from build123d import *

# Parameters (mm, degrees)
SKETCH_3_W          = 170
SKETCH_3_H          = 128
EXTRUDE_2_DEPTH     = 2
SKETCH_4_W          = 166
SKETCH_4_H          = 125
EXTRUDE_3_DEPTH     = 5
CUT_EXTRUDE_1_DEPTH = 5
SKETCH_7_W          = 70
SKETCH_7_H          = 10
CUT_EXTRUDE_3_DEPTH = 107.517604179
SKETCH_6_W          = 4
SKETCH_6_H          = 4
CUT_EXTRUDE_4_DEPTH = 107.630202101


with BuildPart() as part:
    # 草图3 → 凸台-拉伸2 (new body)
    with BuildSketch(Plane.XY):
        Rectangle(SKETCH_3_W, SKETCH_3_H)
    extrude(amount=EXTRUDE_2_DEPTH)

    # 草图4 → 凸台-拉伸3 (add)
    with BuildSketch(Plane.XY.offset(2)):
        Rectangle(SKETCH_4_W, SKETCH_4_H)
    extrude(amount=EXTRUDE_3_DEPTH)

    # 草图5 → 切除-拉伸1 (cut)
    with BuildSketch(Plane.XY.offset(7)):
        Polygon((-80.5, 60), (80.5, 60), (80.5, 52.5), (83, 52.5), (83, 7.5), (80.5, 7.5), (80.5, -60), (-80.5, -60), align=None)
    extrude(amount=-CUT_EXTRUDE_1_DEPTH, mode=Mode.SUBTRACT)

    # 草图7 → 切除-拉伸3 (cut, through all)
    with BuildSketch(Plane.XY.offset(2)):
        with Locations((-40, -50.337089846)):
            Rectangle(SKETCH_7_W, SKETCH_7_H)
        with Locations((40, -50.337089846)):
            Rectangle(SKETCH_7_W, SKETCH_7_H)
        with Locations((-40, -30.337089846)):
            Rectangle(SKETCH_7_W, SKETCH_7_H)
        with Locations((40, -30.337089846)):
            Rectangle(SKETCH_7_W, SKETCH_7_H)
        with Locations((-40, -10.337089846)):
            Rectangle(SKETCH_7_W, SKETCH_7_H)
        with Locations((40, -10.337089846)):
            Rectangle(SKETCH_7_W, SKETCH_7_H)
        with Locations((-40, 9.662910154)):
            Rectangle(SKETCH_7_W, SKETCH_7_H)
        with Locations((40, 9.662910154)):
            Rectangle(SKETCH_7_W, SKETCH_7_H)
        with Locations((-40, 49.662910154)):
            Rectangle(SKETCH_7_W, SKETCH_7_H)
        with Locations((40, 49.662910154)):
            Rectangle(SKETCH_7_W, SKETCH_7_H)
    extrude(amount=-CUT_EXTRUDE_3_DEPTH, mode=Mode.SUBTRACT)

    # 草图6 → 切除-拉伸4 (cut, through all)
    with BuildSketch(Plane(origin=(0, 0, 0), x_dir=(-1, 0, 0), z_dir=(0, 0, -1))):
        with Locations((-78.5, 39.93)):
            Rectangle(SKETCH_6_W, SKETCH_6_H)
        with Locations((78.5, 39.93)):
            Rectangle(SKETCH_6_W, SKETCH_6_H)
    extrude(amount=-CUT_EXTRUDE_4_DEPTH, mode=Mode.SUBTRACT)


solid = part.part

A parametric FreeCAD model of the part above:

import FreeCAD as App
import Part
import Sketcher
from FreeCAD import Vector
Q = App.Units.Quantity


def add_polygon(sketch, points):
    """Adds a closed chain of lines whose ends are joined by coincident constraints."""
    first, n = sketch.GeometryCount, len(points)
    for a, b in zip(points, points[1:] + points[:1]):
        sketch.addGeometry(Part.LineSegment(App.Vector(*a, 0), App.Vector(*b, 0)), False)
    for i in range(n):
        sketch.addConstraint(Sketcher.Constraint("Coincident", first + i, 2, first + (i + 1) % n, 1))

doc = App.newDocument("Part")
body = doc.addObject("PartDesign::Body", "Body")

# Sketch on XY plane
sketch1 = body.newObject("Sketcher::SketchObject", "Sketch")
sketch1.AttachmentSupport = (doc.getObject("XY_Plane"), [""])
sketch1.MapMode = "FlatFace"
add_polygon(sketch1, [(-85, 64), (-85, -64), (85, -64), (85, 64)])  # lines 0-3
sketch1.addConstraint(Sketcher.Constraint("Vertical", 0))
sketch1.addConstraint(Sketcher.Constraint("Horizontal", 1))
sketch1.addConstraint(Sketcher.Constraint("Vertical", 2))
sketch1.addConstraint(Sketcher.Constraint("Horizontal", 3))
sketch1.addConstraint(Sketcher.Constraint("Symmetric", 0, 2, 2, 2, -1, 1))
sketch1.addConstraint(Sketcher.Constraint("DistanceX", 1, 1, 1, 2, Q("170 mm")))
sketch1.addConstraint(Sketcher.Constraint("DistanceY", 0, 2, 0, 1, Q("128 mm")))
pad1 = body.newObject("PartDesign::Pad", "Pad")
pad1.Profile = sketch1
pad1.Length = 2

# Sketch on XY plane
sketch2 = body.newObject("Sketcher::SketchObject", "Sketch001")
sketch2.AttachmentSupport = (doc.getObject("XY_Plane"), [""])
sketch2.MapMode = "FlatFace"
sketch2.AttachmentOffset = App.Placement(Vector(0, 0, 2), App.Rotation())
add_polygon(sketch2, [(-83, 62.5), (-83, -62.5), (83, -62.5), (83, 62.5)])  # lines 0-3
sketch2.addConstraint(Sketcher.Constraint("Vertical", 0))
sketch2.addConstraint(Sketcher.Constraint("Horizontal", 1))
sketch2.addConstraint(Sketcher.Constraint("Vertical", 2))
sketch2.addConstraint(Sketcher.Constraint("Horizontal", 3))
sketch2.addConstraint(Sketcher.Constraint("Symmetric", 0, 2, 2, 2, -1, 1))
sketch2.addConstraint(Sketcher.Constraint("DistanceX", 1, 1, 1, 2, Q("166 mm")))
sketch2.addConstraint(Sketcher.Constraint("DistanceY", 0, 2, 0, 1, Q("125 mm")))
pad2 = body.newObject("PartDesign::Pad", "Pad001")
pad2.Profile = sketch2
pad2.Length = 5

# Sketch on XY plane
sketch3 = body.newObject("Sketcher::SketchObject", "Sketch002")
sketch3.AttachmentSupport = (doc.getObject("XY_Plane"), [""])
sketch3.MapMode = "FlatFace"
sketch3.AttachmentOffset = App.Placement(Vector(0, 0, 7), App.Rotation())
add_polygon(sketch3, [(80.5, 60), (-80.5, 60), (-80.5, -60), (80.5, -60), (80.5, 7.5), (83, 7.5), (83, 52.5), (80.5, 52.5)])  # lines 0-7
sketch3.addConstraint(Sketcher.Constraint("Horizontal", 0))
sketch3.addConstraint(Sketcher.Constraint("Vertical", 1))
sketch3.addConstraint(Sketcher.Constraint("Horizontal", 2))
sketch3.addConstraint(Sketcher.Constraint("Vertical", 3))
sketch3.addConstraint(Sketcher.Constraint("Horizontal", 4))
sketch3.addConstraint(Sketcher.Constraint("Vertical", 5))
sketch3.addConstraint(Sketcher.Constraint("Horizontal", 6))
sketch3.addConstraint(Sketcher.Constraint("Vertical", 7))
sketch3.addConstraint(Sketcher.Constraint("Symmetric", 0, 2, 2, 2, -1, 1))
sketch3.addConstraint(Sketcher.Constraint("Vertical", 3, 2, 6, 2))
sketch3.addConstraint(Sketcher.Constraint("DistanceX", 0, 2, 0, 1, Q("161 mm")))
sketch3.addConstraint(Sketcher.Constraint("DistanceY", 1, 2, 1, 1, Q("120 mm")))
sketch3.addConstraint(Sketcher.Constraint("DistanceY", 5, 1, 5, 2, Q("45 mm")))
sketch3.addConstraint(Sketcher.Constraint("DistanceX", 4, 1, 4, 2, Q("2.5 mm")))
sketch3.addConstraint(Sketcher.Constraint("DistanceY", 3, 1, 3, 2, Q("67.5 mm")))
pocket1 = body.newObject("PartDesign::Pocket", "Pocket")
pocket1.Profile = sketch3
pocket1.Length = 5

# Sketch on XY plane
sketch4 = body.newObject("Sketcher::SketchObject", "Sketch003")
sketch4.AttachmentSupport = (doc.getObject("XY_Plane"), [""])
sketch4.MapMode = "FlatFace"
sketch4.AttachmentOffset = App.Placement(Vector(0, 0, 2), App.Rotation())
add_polygon(sketch4, [(-75, -45.33709), (-75, -55.33709), (-5, -55.33709), (-5, -45.33709)])  # lines 0-3
add_polygon(sketch4, [(5, -45.33709), (5, -55.33709), (75, -55.33709), (75, -45.33709)])  # lines 4-7
add_polygon(sketch4, [(-75, -25.33709), (-75, -35.33709), (-5, -35.33709), (-5, -25.33709)])  # lines 8-11
add_polygon(sketch4, [(5, -25.33709), (5, -35.33709), (75, -35.33709), (75, -25.33709)])  # lines 12-15
add_polygon(sketch4, [(-75, -5.33709), (-75, -15.33709), (-5, -15.33709), (-5, -5.33709)])  # lines 16-19
add_polygon(sketch4, [(5, -5.33709), (5, -15.33709), (75, -15.33709), (75, -5.33709)])  # lines 20-23
add_polygon(sketch4, [(-75, 14.66291), (-75, 4.66291), (-5, 4.66291), (-5, 14.66291)])  # lines 24-27
add_polygon(sketch4, [(5, 14.66291), (5, 4.66291), (75, 4.66291), (75, 14.66291)])  # lines 28-31
add_polygon(sketch4, [(-75, 54.66291), (-75, 44.66291), (-5, 44.66291), (-5, 54.66291)])  # lines 32-35
add_polygon(sketch4, [(5, 54.66291), (5, 44.66291), (75, 44.66291), (75, 54.66291)])  # lines 36-39
sketch4.addConstraint(Sketcher.Constraint("Vertical", 0))
sketch4.addConstraint(Sketcher.Constraint("Horizontal", 1))
sketch4.addConstraint(Sketcher.Constraint("Vertical", 2))
sketch4.addConstraint(Sketcher.Constraint("Horizontal", 3))
sketch4.addConstraint(Sketcher.Constraint("Vertical", 4))
sketch4.addConstraint(Sketcher.Constraint("Horizontal", 5))
sketch4.addConstraint(Sketcher.Constraint("Vertical", 6))
sketch4.addConstraint(Sketcher.Constraint("Horizontal", 7))
sketch4.addConstraint(Sketcher.Constraint("Vertical", 8))
sketch4.addConstraint(Sketcher.Constraint("Horizontal", 9))
sketch4.addConstraint(Sketcher.Constraint("Vertical", 10))
sketch4.addConstraint(Sketcher.Constraint("Horizontal", 11))
sketch4.addConstraint(Sketcher.Constraint("Vertical", 12))
sketch4.addConstraint(Sketcher.Constraint("Horizontal", 13))
sketch4.addConstraint(Sketcher.Constraint("Vertical", 14))
sketch4.addConstraint(Sketcher.Constraint("Horizontal", 15))
sketch4.addConstraint(Sketcher.Constraint("Vertical", 16))
sketch4.addConstraint(Sketcher.Constraint("Horizontal", 17))
sketch4.addConstraint(Sketcher.Constraint("Vertical", 18))
sketch4.addConstraint(Sketcher.Constraint("Horizontal", 19))
sketch4.addConstraint(Sketcher.Constraint("Vertical", 20))
sketch4.addConstraint(Sketcher.Constraint("Horizontal", 21))
sketch4.addConstraint(Sketcher.Constraint("Vertical", 22))
sketch4.addConstraint(Sketcher.Constraint("Horizontal", 23))
sketch4.addConstraint(Sketcher.Constraint("Vertical", 24))
sketch4.addConstraint(Sketcher.Constraint("Horizontal", 25))
sketch4.addConstraint(Sketcher.Constraint("Vertical", 26))
sketch4.addConstraint(Sketcher.Constraint("Horizontal", 27))
sketch4.addConstraint(Sketcher.Constraint("Vertical", 28))
sketch4.addConstraint(Sketcher.Constraint("Horizontal", 29))
sketch4.addConstraint(Sketcher.Constraint("Vertical", 30))
sketch4.addConstraint(Sketcher.Constraint("Horizontal", 31))
sketch4.addConstraint(Sketcher.Constraint("Vertical", 32))
sketch4.addConstraint(Sketcher.Constraint("Horizontal", 33))
sketch4.addConstraint(Sketcher.Constraint("Vertical", 34))
sketch4.addConstraint(Sketcher.Constraint("Horizontal", 35))
sketch4.addConstraint(Sketcher.Constraint("Vertical", 36))
sketch4.addConstraint(Sketcher.Constraint("Horizontal", 37))
sketch4.addConstraint(Sketcher.Constraint("Vertical", 38))
sketch4.addConstraint(Sketcher.Constraint("Horizontal", 39))
sketch4.addConstraint(Sketcher.Constraint("Symmetric", 1, 2, 4, 2, -2))
sketch4.addConstraint(Sketcher.Constraint("Symmetric", 3, 2, 6, 2, -2))
sketch4.addConstraint(Sketcher.Constraint("Symmetric", 9, 2, 12, 2, -2))
sketch4.addConstraint(Sketcher.Constraint("Symmetric", 11, 2, 14, 2, -2))
sketch4.addConstraint(Sketcher.Constraint("Symmetric", 17, 2, 20, 2, -2))
sketch4.addConstraint(Sketcher.Constraint("Symmetric", 19, 2, 22, 2, -2))
sketch4.addConstraint(Sketcher.Constraint("Symmetric", 25, 2, 28, 2, -2))
sketch4.addConstraint(Sketcher.Constraint("Symmetric", 27, 2, 30, 2, -2))
sketch4.addConstraint(Sketcher.Constraint("Symmetric", 33, 2, 36, 2, -2))
sketch4.addConstraint(Sketcher.Constraint("Symmetric", 35, 2, 38, 2, -2))
sketch4.addConstraint(Sketcher.Constraint("Vertical", 3, 2, 8, 2))
sketch4.addConstraint(Sketcher.Constraint("Vertical", 2, 2, 9, 2))
sketch4.addConstraint(Sketcher.Constraint("Vertical", 11, 2, 16, 2))
sketch4.addConstraint(Sketcher.Constraint("Vertical", 10, 2, 17, 2))
sketch4.addConstraint(Sketcher.Constraint("Vertical", 19, 2, 24, 2))
sketch4.addConstraint(Sketcher.Constraint("Vertical", 18, 2, 25, 2))
sketch4.addConstraint(Sketcher.Constraint("Vertical", 27, 2, 32, 2))
sketch4.addConstraint(Sketcher.Constraint("Vertical", 26, 2, 33, 2))
sketch4.addConstraint(Sketcher.Constraint("Equal", 6, 8))
sketch4.addConstraint(Sketcher.Constraint("Equal", 14, 16))
sketch4.addConstraint(Sketcher.Constraint("Equal", 22, 24))
sketch4.addConstraint(Sketcher.Constraint("Equal", 30, 32))
sketch4.addConstraint(Sketcher.Constraint("DistanceX", 1, 1, 1, 2, Q("70 mm")))
sketch4.addConstraint(Sketcher.Constraint("DistanceY", 0, 2, 0, 1, Q("10 mm")))
sketch4.addConstraint(Sketcher.Constraint("DistanceX", 0, 2, -1, 1, Q("75 mm")))
sketch4.addConstraint(Sketcher.Constraint("DistanceY", 3, 2, 8, 2, Q("10 mm")))
sketch4.addConstraint(Sketcher.Constraint("DistanceY", 11, 2, 16, 2, Q("10 mm")))
sketch4.addConstraint(Sketcher.Constraint("DistanceY", 19, 2, 24, 2, Q("10 mm")))
sketch4.addConstraint(Sketcher.Constraint("DistanceY", 27, 2, 32, 2, Q("30 mm")))
sketch4.addConstraint(Sketcher.Constraint("DistanceY", 0, 2, -1, 1, Q("55.33709 mm")))
pocket2 = body.newObject("PartDesign::Pocket", "Pocket001")
pocket2.Profile = sketch4
pocket2.Type = "ThroughAll"

# Sketch on XY plane
sketch5 = body.newObject("Sketcher::SketchObject", "Sketch004")
sketch5.AttachmentSupport = (doc.getObject("XY_Plane"), [""])
sketch5.MapMode = "FlatFace"
add_polygon(sketch5, [(80.5, 41.93), (80.5, 37.93), (76.5, 37.93), (76.5, 41.93)])  # lines 0-3
add_polygon(sketch5, [(-76.5, 41.93), (-76.5, 37.93), (-80.5, 37.93), (-80.5, 41.93)])  # lines 4-7
sketch5.addConstraint(Sketcher.Constraint("Vertical", 0))
sketch5.addConstraint(Sketcher.Constraint("Horizontal", 1))
sketch5.addConstraint(Sketcher.Constraint("Vertical", 2))
sketch5.addConstraint(Sketcher.Constraint("Horizontal", 3))
sketch5.addConstraint(Sketcher.Constraint("Vertical", 4))
sketch5.addConstraint(Sketcher.Constraint("Horizontal", 5))
sketch5.addConstraint(Sketcher.Constraint("Vertical", 6))
sketch5.addConstraint(Sketcher.Constraint("Horizontal", 7))
sketch5.addConstraint(Sketcher.Constraint("Symmetric", 1, 2, 4, 2, -2))
sketch5.addConstraint(Sketcher.Constraint("Symmetric", 3, 2, 6, 2, -2))
sketch5.addConstraint(Sketcher.Constraint("Equal", 7, 0))
sketch5.addConstraint(Sketcher.Constraint("DistanceX", 1, 2, 1, 1, Q("4 mm")))
sketch5.addConstraint(Sketcher.Constraint("DistanceX", 4, 2, 1, 2, Q("153 mm")))
sketch5.addConstraint(Sketcher.Constraint("DistanceY", -1, 1, 0, 2, Q("37.93 mm")))
pocket3 = body.newObject("PartDesign::Pocket", "Pocket002")
pocket3.Profile = sketch5
pocket3.Type = "ThroughAll"
pocket3.Reversed = True

doc.recompute()
